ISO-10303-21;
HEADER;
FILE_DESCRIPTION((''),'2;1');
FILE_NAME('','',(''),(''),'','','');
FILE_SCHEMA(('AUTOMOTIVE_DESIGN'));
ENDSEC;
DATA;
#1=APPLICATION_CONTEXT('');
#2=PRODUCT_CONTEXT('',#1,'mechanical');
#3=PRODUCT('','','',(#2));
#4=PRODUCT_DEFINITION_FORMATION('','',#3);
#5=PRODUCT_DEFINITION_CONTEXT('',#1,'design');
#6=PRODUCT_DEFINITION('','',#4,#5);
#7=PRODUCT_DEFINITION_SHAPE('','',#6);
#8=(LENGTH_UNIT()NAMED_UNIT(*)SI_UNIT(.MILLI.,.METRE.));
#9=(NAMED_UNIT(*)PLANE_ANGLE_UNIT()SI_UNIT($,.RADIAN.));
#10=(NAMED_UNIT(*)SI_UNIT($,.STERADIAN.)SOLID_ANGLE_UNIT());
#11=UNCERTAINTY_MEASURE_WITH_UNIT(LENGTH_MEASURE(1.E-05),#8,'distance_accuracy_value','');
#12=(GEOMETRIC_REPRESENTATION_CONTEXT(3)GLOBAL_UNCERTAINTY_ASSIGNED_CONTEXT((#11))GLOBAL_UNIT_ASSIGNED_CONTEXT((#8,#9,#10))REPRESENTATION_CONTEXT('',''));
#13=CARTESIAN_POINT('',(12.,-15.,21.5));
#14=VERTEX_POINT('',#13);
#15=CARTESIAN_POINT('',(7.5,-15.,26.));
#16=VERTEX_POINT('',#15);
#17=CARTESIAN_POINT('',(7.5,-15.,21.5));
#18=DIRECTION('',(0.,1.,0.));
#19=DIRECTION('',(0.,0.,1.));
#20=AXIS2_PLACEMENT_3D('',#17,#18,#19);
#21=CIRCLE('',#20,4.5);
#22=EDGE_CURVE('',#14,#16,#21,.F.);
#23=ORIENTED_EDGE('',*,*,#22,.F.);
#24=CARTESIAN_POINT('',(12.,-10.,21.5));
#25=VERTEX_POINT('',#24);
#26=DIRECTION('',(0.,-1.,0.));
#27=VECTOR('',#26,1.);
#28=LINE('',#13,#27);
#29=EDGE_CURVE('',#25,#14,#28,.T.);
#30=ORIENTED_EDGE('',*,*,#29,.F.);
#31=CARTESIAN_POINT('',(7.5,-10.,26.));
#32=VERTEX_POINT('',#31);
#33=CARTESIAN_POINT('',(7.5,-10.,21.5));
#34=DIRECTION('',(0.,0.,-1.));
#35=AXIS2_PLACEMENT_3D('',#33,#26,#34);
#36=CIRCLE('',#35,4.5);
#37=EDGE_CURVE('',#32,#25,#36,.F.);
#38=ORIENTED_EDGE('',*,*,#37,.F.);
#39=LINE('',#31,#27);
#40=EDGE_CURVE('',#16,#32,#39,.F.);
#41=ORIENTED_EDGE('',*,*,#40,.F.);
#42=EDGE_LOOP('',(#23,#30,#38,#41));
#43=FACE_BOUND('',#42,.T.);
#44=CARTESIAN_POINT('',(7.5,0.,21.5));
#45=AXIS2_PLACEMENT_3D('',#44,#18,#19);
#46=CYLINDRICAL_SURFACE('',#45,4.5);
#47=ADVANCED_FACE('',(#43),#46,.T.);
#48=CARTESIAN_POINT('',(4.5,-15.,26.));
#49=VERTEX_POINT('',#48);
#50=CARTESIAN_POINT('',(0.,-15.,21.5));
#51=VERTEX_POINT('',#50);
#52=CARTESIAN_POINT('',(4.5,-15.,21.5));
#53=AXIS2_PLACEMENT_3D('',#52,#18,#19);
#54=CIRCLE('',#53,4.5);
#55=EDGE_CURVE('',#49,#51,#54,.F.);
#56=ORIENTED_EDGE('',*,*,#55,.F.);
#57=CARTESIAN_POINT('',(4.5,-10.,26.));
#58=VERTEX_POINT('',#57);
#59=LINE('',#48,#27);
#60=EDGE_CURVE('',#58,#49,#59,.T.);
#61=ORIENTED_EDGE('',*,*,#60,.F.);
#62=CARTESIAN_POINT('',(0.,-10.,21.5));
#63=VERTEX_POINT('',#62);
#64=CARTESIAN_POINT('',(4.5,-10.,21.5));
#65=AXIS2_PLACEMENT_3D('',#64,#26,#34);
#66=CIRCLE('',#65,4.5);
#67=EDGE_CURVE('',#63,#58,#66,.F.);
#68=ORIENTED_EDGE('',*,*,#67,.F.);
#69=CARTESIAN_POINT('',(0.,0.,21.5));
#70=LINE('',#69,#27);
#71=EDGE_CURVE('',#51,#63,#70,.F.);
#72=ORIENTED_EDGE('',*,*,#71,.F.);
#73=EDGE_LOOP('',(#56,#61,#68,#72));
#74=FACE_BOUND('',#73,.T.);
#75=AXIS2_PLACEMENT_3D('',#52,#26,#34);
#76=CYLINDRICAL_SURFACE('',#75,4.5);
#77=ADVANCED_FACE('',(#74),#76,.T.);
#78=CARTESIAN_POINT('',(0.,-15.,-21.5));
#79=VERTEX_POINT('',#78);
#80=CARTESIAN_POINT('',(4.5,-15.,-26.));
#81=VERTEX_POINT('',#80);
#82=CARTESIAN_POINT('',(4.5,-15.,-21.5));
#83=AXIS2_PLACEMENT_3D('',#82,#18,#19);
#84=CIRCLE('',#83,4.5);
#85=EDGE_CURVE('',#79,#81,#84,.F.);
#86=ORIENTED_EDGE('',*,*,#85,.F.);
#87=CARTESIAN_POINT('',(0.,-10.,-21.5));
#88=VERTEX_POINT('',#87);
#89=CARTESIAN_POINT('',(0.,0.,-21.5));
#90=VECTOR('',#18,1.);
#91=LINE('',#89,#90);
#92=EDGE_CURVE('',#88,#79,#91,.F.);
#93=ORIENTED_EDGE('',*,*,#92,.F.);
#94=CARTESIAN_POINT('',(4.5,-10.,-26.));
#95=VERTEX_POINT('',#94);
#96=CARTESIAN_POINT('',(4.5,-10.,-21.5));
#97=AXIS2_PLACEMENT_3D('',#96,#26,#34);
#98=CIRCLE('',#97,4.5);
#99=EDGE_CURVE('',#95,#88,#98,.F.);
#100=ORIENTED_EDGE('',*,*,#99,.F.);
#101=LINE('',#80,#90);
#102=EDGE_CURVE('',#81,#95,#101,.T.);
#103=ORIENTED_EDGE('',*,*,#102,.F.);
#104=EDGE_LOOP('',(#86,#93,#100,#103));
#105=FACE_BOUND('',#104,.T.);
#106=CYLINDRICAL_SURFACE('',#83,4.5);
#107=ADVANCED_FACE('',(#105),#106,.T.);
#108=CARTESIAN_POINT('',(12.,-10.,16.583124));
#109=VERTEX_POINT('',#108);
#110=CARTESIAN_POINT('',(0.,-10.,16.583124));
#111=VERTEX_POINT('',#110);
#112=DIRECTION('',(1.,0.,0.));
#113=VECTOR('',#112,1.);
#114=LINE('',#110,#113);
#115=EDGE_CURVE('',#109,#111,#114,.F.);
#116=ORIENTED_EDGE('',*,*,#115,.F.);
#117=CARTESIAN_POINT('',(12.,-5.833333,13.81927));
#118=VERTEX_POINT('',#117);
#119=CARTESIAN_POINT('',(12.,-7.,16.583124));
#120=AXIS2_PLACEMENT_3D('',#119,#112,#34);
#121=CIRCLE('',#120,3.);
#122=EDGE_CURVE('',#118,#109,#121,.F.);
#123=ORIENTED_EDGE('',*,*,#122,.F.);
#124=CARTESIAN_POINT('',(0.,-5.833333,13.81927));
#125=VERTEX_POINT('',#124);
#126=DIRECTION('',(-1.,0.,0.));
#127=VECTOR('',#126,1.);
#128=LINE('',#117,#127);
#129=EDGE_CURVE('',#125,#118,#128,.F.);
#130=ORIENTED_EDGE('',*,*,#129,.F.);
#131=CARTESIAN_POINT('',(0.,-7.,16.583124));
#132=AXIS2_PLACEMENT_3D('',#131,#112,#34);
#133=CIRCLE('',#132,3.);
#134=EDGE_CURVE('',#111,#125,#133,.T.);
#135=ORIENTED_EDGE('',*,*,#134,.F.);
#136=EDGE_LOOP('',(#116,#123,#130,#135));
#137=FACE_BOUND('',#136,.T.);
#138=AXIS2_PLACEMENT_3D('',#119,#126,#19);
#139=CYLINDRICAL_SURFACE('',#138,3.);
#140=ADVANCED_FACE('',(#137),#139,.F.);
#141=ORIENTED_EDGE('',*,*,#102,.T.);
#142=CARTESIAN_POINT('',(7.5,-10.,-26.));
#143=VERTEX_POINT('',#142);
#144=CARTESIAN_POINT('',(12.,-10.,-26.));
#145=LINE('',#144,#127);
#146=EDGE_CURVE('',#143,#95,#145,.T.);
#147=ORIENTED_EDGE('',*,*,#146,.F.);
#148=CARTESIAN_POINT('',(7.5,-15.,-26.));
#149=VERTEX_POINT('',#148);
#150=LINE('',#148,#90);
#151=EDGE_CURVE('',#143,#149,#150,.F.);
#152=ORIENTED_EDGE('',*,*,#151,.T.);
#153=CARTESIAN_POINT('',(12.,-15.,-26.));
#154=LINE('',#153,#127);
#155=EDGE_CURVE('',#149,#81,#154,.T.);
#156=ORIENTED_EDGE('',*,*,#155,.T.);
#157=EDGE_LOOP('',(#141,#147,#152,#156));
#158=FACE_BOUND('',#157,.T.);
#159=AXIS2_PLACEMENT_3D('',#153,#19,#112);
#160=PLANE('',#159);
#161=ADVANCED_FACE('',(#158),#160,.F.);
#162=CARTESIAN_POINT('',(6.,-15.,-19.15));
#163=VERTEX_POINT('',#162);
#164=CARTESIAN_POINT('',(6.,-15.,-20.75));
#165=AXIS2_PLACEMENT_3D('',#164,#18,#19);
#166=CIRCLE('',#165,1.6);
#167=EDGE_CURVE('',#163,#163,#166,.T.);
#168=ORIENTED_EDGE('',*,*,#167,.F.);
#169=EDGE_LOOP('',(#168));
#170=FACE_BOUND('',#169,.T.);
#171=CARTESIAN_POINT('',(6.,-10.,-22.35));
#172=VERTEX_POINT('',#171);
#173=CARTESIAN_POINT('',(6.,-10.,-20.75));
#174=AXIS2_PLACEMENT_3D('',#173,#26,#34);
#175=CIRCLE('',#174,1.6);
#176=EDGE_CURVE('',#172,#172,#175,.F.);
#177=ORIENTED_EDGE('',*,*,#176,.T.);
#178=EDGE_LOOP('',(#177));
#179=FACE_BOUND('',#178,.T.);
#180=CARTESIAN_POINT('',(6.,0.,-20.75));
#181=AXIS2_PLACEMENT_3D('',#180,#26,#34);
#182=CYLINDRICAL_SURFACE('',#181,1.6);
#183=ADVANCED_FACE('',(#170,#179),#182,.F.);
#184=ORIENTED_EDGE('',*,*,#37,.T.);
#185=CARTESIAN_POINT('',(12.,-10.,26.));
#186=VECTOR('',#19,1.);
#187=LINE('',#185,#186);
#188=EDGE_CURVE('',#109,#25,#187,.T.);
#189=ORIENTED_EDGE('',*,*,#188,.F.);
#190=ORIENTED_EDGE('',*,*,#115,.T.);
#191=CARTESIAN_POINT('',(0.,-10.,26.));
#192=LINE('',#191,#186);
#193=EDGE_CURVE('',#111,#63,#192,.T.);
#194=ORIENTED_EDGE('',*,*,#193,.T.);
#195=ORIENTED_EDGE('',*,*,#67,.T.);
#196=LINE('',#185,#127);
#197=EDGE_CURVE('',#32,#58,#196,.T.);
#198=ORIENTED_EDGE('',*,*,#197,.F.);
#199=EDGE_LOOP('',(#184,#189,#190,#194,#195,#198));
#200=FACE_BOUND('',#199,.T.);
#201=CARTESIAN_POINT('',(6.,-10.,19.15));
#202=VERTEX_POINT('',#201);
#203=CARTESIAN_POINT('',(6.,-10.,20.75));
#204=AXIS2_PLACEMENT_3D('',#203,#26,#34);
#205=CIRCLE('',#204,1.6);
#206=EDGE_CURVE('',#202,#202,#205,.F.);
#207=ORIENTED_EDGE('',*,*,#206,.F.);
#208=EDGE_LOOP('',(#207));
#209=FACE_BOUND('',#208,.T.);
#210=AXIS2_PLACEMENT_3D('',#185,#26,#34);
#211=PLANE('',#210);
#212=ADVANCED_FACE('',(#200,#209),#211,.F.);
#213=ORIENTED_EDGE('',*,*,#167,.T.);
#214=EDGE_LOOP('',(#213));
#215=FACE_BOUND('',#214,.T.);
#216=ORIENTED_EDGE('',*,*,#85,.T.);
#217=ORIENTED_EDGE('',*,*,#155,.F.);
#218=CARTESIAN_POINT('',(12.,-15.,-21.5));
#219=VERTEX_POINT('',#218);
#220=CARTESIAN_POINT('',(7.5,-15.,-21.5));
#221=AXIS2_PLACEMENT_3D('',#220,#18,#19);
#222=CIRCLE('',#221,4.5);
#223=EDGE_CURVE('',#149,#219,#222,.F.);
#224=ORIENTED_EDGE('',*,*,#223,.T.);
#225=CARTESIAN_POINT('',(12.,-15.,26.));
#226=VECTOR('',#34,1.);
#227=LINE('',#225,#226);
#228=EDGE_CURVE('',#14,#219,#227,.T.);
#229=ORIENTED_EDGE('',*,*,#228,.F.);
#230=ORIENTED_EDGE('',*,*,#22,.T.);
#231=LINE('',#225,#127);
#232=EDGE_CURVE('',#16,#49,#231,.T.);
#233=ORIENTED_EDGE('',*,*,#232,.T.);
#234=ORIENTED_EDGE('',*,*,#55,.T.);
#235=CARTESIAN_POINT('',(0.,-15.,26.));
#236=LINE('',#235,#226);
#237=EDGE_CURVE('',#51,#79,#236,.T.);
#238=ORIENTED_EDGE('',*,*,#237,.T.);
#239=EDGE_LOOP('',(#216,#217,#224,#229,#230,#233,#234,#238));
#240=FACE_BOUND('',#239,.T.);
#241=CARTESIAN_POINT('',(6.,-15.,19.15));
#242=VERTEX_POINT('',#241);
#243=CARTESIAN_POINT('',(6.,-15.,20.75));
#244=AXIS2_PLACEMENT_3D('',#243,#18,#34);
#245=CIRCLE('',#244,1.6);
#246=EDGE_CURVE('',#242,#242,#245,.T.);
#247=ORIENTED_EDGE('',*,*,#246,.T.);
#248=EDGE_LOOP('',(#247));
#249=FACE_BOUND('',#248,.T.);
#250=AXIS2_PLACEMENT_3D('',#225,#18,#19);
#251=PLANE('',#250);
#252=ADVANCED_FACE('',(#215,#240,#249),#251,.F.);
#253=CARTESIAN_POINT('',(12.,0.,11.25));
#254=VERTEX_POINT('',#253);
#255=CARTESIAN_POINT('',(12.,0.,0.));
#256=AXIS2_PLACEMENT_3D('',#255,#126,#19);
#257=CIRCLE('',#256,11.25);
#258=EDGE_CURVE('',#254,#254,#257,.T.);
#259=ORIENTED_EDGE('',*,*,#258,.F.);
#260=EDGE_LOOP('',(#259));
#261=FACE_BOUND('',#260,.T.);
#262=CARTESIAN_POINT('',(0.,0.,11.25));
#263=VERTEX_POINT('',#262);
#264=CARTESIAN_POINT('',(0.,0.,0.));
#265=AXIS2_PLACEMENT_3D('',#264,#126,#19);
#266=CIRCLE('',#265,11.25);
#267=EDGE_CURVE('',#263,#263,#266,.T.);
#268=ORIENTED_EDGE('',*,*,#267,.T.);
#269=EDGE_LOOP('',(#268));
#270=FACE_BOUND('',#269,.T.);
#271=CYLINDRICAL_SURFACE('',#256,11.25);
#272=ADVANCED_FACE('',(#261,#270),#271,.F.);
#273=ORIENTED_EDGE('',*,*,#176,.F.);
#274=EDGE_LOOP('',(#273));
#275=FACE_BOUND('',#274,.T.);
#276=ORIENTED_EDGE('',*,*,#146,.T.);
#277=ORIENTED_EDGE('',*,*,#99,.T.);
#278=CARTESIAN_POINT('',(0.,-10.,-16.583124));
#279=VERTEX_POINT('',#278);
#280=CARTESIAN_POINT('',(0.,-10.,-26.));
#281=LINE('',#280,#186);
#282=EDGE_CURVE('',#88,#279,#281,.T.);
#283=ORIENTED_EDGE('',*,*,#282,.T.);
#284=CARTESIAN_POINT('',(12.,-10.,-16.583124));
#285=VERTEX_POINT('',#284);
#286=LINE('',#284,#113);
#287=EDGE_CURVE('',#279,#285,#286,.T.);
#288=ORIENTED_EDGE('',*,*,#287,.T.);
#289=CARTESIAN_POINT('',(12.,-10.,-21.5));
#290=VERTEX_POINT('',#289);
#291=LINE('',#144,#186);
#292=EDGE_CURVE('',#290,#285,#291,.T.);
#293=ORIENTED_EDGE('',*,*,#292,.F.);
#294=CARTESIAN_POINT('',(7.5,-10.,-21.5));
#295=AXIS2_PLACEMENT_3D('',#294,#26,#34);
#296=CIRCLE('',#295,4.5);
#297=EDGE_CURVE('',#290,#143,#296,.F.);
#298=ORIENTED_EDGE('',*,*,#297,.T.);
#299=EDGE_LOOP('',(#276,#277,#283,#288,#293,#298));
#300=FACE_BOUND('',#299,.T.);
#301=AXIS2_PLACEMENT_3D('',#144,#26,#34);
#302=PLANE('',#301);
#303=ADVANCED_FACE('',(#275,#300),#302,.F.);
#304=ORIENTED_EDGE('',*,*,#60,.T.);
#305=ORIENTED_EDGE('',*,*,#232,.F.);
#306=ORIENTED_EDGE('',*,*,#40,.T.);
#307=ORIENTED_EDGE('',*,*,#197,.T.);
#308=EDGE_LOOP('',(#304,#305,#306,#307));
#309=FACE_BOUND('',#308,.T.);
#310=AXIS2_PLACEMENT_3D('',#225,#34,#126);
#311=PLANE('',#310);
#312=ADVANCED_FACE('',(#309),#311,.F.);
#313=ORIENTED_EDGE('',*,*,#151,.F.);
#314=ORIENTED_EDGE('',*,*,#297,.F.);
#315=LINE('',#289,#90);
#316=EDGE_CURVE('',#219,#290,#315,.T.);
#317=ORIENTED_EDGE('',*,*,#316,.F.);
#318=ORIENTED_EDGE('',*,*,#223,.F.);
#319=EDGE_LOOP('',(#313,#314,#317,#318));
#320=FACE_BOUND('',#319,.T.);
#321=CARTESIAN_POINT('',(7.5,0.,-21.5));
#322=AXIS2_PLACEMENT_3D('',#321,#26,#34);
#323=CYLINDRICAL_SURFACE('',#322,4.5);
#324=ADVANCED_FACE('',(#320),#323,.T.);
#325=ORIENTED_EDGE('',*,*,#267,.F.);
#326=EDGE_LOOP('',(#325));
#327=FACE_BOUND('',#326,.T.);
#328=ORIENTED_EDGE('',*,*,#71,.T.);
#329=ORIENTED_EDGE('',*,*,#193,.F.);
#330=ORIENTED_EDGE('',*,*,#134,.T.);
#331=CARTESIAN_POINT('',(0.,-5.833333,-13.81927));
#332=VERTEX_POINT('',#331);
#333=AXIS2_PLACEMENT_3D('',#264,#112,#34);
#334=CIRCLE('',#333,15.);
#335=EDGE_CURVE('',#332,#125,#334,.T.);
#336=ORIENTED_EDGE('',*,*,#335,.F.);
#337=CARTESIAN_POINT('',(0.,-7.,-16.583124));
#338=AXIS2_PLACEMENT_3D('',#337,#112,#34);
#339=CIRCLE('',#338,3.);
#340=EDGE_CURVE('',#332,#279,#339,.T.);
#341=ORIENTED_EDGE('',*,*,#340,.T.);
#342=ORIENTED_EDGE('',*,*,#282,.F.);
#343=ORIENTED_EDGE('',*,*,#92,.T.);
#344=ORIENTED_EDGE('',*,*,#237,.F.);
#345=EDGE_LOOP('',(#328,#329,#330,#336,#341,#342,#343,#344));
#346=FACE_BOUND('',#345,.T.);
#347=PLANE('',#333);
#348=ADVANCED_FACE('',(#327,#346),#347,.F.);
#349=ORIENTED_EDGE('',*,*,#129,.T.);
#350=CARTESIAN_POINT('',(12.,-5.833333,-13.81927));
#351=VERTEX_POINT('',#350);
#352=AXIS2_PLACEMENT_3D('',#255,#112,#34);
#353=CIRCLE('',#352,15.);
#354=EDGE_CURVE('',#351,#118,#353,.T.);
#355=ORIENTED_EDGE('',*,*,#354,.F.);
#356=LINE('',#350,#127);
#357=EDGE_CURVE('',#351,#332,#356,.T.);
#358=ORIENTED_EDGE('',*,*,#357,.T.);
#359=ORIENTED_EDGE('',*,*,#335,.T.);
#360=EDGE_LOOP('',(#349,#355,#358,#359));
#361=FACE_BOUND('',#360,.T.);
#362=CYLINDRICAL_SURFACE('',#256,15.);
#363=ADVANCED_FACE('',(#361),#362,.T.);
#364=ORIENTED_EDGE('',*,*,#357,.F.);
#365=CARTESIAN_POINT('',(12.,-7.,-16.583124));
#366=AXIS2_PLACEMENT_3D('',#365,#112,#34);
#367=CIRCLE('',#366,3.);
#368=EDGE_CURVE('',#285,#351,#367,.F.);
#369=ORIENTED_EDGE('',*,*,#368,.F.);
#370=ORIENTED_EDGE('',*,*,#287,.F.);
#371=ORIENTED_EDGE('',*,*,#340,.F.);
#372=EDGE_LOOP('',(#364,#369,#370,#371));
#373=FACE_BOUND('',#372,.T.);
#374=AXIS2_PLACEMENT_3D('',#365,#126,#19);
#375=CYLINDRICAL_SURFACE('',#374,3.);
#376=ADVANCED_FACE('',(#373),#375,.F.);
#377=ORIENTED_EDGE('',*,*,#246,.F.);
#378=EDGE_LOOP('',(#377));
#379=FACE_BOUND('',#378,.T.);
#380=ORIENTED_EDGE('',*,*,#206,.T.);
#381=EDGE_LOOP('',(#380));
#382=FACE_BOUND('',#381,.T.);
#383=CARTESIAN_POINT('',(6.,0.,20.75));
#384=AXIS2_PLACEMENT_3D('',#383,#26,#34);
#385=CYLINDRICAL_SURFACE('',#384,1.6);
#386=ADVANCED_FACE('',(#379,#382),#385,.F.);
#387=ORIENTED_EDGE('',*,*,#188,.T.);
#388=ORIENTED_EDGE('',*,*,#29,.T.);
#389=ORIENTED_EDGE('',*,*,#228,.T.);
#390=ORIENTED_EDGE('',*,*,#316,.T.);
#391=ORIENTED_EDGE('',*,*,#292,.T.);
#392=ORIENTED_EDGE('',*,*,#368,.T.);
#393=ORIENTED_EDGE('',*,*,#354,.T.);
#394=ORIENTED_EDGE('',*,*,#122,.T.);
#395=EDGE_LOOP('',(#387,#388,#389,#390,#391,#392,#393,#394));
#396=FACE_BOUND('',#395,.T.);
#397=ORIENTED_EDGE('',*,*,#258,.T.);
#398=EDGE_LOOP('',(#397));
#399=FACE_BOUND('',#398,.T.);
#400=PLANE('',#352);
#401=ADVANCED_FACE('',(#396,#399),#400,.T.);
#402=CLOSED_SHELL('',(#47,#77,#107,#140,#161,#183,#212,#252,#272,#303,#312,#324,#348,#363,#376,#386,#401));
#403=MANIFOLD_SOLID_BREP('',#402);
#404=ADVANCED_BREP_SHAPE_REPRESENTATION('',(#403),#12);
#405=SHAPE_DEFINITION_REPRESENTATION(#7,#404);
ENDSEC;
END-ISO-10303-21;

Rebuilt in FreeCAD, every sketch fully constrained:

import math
import FreeCAD as App
import Part
import Sketcher
from FreeCAD import Vector
Q = App.Units.Quantity


def edges_at(feature, points):
    """Names of the edges that pass closest to the given points."""
    edges = feature.Shape.Edges
    near = lambda p: min(range(len(edges)), key=lambda i: edges[i].distToShape(Part.Vertex(*p))[0])
    return sorted({f"Edge{near(p) + 1}" for p in points})

doc = App.newDocument("Part")
body = doc.addObject("PartDesign::Body", "Body")

sketch1 = body.newObject("Sketcher::SketchObject", "Sketch")
sketch1.AttachmentSupport = (doc.getObject("YZ_Plane"), [""])
sketch1.MapMode = "FlatFace"
sketch1.addGeometry(Part.LineSegment(Vector(-15, 26, 0), Vector(-15, -26, 0)), False)
sketch1.addGeometry(Part.LineSegment(Vector(-15, -26, 0), Vector(-10, -26, 0)), False)
sketch1.addGeometry(Part.LineSegment(Vector(-10, -26, 0), Vector(-10, -11.18034, 0)), False)
sketch1.addGeometry(Part.ArcOfCircle(Part.Circle(Vector(0, 0, 0), Vector(0, 0, 1), 15), math.radians(-131.810315), math.radians(131.810315)), False)
sketch1.addGeometry(Part.LineSegment(Vector(-10, 11.18034, 0), Vector(-10, 26, 0)), False)
sketch1.addGeometry(Part.LineSegment(Vector(-10, 26, 0), Vector(-15, 26, 0)), False)
sketch1.addConstraint(Sketcher.Constraint("Coincident", 0, 2, 1, 1))
sketch1.addConstraint(Sketcher.Constraint("Coincident", 1, 2, 2, 1))
sketch1.addConstraint(Sketcher.Constraint("Coincident", 2, 2, 3, 1))
sketch1.addConstraint(Sketcher.Constraint("Coincident", 3, 2, 4, 1))
sketch1.addConstraint(Sketcher.Constraint("Coincident", 4, 2, 5, 1))
sketch1.addConstraint(Sketcher.Constraint("Coincident", 5, 2, 0, 1))
sketch1.addConstraint(Sketcher.Constraint("Vertical", 0))
sketch1.addConstraint(Sketcher.Constraint("Horizontal", 1))
sketch1.addConstraint(Sketcher.Constraint("Vertical", 2))
sketch1.addConstraint(Sketcher.Constraint("Vertical", 4))
sketch1.addConstraint(Sketcher.Constraint("Horizontal", 5))
sketch1.addConstraint(Sketcher.Constraint("Coincident", 3, 3, -1, 1))
sketch1.addConstraint(Sketcher.Constraint("Symmetric", 1, 2, 4, 2, -1))
sketch1.addConstraint(Sketcher.Constraint("Radius", 3, Q("15 mm")))
sketch1.addConstraint(Sketcher.Constraint("DistanceX", 1, 1, 1, 2, Q("5 mm")))
sketch1.addConstraint(Sketcher.Constraint("DistanceY", 0, 2, 0, 1, Q("52 mm")))
sketch1.addConstraint(Sketcher.Constraint("DistanceX", 0, 2, -1, 1, Q("15 mm")))
pad1 = body.newObject("PartDesign::Pad", "Pad")
pad1.Profile = sketch1
pad1.Length = 12

sketch2 = body.newObject("Sketcher::SketchObject", "Sketch001")
sketch2.AttachmentSupport = (doc.getObject("YZ_Plane"), [""])
sketch2.MapMode = "FlatFace"
sketch2.addGeometry(Part.Circle(Vector(0, 0, 0), Vector(0, 0, 1), 11.25), False)
sketch2.addConstraint(Sketcher.Constraint("Coincident", 0, 3, -1, 1))
sketch2.addConstraint(Sketcher.Constraint("Diameter", 0, Q("22.5 mm")))
pocket1 = body.newObject("PartDesign::Pocket", "Pocket")
pocket1.Profile = sketch2
pocket1.Type = "ThroughAll"
pocket1.Reversed = True
doc.recompute()

fillet = body.newObject("PartDesign::Fillet", "Fillet")
fillet.Base = (pocket1, edges_at(pocket1, [(6, -10, 11.18), (6, -10, -11.18)]))
fillet.Radius = 3
doc.recompute()

fillet2 = body.newObject("PartDesign::Fillet", "Fillet001")
fillet2.Base = (fillet, edges_at(fillet, [
    (12, -12.5, -26),
    (12, -12.5, 26),
    (0, -12.5, -26),
    (0, -12.5, 26),
]))
fillet2.Radius = 4.5

sketch3 = body.newObject("Sketcher::SketchObject", "Sketch002")
sketch3.AttachmentSupport = (doc.getObject("XZ_Plane"), [""])
sketch3.MapMode = "FlatFace"
sketch3.AttachmentOffset = App.Placement(Vector(0, 0, 10), App.Rotation())
sketch3.addGeometry(Part.Circle(Vector(6, -20.75, 0), Vector(0, 0, 1), 1.6), False)
sketch3.addGeometry(Part.Circle(Vector(6, 20.75, 0), Vector(0, 0, 1), 1.6), False)
sketch3.addConstraint(Sketcher.Constraint("Equal", 0, 1))
sketch3.addConstraint(Sketcher.Constraint("Symmetric", 0, 3, 1, 3, -1))
sketch3.addConstraint(Sketcher.Constraint("Diameter", 0, Q("3.2 mm")))
sketch3.addConstraint(Sketcher.Constraint("DistanceX", -1, 1, 0, 3, Q("6 mm")))
sketch3.addConstraint(Sketcher.Constraint("DistanceY", 0, 3, 1, 3, Q("41.5 mm")))
pocket2 = body.newObject("PartDesign::Pocket", "Pocket001")
pocket2.Profile = sketch3
pocket2.Type = "ThroughAll"
pocket2.Midplane = True

doc.recompute()
